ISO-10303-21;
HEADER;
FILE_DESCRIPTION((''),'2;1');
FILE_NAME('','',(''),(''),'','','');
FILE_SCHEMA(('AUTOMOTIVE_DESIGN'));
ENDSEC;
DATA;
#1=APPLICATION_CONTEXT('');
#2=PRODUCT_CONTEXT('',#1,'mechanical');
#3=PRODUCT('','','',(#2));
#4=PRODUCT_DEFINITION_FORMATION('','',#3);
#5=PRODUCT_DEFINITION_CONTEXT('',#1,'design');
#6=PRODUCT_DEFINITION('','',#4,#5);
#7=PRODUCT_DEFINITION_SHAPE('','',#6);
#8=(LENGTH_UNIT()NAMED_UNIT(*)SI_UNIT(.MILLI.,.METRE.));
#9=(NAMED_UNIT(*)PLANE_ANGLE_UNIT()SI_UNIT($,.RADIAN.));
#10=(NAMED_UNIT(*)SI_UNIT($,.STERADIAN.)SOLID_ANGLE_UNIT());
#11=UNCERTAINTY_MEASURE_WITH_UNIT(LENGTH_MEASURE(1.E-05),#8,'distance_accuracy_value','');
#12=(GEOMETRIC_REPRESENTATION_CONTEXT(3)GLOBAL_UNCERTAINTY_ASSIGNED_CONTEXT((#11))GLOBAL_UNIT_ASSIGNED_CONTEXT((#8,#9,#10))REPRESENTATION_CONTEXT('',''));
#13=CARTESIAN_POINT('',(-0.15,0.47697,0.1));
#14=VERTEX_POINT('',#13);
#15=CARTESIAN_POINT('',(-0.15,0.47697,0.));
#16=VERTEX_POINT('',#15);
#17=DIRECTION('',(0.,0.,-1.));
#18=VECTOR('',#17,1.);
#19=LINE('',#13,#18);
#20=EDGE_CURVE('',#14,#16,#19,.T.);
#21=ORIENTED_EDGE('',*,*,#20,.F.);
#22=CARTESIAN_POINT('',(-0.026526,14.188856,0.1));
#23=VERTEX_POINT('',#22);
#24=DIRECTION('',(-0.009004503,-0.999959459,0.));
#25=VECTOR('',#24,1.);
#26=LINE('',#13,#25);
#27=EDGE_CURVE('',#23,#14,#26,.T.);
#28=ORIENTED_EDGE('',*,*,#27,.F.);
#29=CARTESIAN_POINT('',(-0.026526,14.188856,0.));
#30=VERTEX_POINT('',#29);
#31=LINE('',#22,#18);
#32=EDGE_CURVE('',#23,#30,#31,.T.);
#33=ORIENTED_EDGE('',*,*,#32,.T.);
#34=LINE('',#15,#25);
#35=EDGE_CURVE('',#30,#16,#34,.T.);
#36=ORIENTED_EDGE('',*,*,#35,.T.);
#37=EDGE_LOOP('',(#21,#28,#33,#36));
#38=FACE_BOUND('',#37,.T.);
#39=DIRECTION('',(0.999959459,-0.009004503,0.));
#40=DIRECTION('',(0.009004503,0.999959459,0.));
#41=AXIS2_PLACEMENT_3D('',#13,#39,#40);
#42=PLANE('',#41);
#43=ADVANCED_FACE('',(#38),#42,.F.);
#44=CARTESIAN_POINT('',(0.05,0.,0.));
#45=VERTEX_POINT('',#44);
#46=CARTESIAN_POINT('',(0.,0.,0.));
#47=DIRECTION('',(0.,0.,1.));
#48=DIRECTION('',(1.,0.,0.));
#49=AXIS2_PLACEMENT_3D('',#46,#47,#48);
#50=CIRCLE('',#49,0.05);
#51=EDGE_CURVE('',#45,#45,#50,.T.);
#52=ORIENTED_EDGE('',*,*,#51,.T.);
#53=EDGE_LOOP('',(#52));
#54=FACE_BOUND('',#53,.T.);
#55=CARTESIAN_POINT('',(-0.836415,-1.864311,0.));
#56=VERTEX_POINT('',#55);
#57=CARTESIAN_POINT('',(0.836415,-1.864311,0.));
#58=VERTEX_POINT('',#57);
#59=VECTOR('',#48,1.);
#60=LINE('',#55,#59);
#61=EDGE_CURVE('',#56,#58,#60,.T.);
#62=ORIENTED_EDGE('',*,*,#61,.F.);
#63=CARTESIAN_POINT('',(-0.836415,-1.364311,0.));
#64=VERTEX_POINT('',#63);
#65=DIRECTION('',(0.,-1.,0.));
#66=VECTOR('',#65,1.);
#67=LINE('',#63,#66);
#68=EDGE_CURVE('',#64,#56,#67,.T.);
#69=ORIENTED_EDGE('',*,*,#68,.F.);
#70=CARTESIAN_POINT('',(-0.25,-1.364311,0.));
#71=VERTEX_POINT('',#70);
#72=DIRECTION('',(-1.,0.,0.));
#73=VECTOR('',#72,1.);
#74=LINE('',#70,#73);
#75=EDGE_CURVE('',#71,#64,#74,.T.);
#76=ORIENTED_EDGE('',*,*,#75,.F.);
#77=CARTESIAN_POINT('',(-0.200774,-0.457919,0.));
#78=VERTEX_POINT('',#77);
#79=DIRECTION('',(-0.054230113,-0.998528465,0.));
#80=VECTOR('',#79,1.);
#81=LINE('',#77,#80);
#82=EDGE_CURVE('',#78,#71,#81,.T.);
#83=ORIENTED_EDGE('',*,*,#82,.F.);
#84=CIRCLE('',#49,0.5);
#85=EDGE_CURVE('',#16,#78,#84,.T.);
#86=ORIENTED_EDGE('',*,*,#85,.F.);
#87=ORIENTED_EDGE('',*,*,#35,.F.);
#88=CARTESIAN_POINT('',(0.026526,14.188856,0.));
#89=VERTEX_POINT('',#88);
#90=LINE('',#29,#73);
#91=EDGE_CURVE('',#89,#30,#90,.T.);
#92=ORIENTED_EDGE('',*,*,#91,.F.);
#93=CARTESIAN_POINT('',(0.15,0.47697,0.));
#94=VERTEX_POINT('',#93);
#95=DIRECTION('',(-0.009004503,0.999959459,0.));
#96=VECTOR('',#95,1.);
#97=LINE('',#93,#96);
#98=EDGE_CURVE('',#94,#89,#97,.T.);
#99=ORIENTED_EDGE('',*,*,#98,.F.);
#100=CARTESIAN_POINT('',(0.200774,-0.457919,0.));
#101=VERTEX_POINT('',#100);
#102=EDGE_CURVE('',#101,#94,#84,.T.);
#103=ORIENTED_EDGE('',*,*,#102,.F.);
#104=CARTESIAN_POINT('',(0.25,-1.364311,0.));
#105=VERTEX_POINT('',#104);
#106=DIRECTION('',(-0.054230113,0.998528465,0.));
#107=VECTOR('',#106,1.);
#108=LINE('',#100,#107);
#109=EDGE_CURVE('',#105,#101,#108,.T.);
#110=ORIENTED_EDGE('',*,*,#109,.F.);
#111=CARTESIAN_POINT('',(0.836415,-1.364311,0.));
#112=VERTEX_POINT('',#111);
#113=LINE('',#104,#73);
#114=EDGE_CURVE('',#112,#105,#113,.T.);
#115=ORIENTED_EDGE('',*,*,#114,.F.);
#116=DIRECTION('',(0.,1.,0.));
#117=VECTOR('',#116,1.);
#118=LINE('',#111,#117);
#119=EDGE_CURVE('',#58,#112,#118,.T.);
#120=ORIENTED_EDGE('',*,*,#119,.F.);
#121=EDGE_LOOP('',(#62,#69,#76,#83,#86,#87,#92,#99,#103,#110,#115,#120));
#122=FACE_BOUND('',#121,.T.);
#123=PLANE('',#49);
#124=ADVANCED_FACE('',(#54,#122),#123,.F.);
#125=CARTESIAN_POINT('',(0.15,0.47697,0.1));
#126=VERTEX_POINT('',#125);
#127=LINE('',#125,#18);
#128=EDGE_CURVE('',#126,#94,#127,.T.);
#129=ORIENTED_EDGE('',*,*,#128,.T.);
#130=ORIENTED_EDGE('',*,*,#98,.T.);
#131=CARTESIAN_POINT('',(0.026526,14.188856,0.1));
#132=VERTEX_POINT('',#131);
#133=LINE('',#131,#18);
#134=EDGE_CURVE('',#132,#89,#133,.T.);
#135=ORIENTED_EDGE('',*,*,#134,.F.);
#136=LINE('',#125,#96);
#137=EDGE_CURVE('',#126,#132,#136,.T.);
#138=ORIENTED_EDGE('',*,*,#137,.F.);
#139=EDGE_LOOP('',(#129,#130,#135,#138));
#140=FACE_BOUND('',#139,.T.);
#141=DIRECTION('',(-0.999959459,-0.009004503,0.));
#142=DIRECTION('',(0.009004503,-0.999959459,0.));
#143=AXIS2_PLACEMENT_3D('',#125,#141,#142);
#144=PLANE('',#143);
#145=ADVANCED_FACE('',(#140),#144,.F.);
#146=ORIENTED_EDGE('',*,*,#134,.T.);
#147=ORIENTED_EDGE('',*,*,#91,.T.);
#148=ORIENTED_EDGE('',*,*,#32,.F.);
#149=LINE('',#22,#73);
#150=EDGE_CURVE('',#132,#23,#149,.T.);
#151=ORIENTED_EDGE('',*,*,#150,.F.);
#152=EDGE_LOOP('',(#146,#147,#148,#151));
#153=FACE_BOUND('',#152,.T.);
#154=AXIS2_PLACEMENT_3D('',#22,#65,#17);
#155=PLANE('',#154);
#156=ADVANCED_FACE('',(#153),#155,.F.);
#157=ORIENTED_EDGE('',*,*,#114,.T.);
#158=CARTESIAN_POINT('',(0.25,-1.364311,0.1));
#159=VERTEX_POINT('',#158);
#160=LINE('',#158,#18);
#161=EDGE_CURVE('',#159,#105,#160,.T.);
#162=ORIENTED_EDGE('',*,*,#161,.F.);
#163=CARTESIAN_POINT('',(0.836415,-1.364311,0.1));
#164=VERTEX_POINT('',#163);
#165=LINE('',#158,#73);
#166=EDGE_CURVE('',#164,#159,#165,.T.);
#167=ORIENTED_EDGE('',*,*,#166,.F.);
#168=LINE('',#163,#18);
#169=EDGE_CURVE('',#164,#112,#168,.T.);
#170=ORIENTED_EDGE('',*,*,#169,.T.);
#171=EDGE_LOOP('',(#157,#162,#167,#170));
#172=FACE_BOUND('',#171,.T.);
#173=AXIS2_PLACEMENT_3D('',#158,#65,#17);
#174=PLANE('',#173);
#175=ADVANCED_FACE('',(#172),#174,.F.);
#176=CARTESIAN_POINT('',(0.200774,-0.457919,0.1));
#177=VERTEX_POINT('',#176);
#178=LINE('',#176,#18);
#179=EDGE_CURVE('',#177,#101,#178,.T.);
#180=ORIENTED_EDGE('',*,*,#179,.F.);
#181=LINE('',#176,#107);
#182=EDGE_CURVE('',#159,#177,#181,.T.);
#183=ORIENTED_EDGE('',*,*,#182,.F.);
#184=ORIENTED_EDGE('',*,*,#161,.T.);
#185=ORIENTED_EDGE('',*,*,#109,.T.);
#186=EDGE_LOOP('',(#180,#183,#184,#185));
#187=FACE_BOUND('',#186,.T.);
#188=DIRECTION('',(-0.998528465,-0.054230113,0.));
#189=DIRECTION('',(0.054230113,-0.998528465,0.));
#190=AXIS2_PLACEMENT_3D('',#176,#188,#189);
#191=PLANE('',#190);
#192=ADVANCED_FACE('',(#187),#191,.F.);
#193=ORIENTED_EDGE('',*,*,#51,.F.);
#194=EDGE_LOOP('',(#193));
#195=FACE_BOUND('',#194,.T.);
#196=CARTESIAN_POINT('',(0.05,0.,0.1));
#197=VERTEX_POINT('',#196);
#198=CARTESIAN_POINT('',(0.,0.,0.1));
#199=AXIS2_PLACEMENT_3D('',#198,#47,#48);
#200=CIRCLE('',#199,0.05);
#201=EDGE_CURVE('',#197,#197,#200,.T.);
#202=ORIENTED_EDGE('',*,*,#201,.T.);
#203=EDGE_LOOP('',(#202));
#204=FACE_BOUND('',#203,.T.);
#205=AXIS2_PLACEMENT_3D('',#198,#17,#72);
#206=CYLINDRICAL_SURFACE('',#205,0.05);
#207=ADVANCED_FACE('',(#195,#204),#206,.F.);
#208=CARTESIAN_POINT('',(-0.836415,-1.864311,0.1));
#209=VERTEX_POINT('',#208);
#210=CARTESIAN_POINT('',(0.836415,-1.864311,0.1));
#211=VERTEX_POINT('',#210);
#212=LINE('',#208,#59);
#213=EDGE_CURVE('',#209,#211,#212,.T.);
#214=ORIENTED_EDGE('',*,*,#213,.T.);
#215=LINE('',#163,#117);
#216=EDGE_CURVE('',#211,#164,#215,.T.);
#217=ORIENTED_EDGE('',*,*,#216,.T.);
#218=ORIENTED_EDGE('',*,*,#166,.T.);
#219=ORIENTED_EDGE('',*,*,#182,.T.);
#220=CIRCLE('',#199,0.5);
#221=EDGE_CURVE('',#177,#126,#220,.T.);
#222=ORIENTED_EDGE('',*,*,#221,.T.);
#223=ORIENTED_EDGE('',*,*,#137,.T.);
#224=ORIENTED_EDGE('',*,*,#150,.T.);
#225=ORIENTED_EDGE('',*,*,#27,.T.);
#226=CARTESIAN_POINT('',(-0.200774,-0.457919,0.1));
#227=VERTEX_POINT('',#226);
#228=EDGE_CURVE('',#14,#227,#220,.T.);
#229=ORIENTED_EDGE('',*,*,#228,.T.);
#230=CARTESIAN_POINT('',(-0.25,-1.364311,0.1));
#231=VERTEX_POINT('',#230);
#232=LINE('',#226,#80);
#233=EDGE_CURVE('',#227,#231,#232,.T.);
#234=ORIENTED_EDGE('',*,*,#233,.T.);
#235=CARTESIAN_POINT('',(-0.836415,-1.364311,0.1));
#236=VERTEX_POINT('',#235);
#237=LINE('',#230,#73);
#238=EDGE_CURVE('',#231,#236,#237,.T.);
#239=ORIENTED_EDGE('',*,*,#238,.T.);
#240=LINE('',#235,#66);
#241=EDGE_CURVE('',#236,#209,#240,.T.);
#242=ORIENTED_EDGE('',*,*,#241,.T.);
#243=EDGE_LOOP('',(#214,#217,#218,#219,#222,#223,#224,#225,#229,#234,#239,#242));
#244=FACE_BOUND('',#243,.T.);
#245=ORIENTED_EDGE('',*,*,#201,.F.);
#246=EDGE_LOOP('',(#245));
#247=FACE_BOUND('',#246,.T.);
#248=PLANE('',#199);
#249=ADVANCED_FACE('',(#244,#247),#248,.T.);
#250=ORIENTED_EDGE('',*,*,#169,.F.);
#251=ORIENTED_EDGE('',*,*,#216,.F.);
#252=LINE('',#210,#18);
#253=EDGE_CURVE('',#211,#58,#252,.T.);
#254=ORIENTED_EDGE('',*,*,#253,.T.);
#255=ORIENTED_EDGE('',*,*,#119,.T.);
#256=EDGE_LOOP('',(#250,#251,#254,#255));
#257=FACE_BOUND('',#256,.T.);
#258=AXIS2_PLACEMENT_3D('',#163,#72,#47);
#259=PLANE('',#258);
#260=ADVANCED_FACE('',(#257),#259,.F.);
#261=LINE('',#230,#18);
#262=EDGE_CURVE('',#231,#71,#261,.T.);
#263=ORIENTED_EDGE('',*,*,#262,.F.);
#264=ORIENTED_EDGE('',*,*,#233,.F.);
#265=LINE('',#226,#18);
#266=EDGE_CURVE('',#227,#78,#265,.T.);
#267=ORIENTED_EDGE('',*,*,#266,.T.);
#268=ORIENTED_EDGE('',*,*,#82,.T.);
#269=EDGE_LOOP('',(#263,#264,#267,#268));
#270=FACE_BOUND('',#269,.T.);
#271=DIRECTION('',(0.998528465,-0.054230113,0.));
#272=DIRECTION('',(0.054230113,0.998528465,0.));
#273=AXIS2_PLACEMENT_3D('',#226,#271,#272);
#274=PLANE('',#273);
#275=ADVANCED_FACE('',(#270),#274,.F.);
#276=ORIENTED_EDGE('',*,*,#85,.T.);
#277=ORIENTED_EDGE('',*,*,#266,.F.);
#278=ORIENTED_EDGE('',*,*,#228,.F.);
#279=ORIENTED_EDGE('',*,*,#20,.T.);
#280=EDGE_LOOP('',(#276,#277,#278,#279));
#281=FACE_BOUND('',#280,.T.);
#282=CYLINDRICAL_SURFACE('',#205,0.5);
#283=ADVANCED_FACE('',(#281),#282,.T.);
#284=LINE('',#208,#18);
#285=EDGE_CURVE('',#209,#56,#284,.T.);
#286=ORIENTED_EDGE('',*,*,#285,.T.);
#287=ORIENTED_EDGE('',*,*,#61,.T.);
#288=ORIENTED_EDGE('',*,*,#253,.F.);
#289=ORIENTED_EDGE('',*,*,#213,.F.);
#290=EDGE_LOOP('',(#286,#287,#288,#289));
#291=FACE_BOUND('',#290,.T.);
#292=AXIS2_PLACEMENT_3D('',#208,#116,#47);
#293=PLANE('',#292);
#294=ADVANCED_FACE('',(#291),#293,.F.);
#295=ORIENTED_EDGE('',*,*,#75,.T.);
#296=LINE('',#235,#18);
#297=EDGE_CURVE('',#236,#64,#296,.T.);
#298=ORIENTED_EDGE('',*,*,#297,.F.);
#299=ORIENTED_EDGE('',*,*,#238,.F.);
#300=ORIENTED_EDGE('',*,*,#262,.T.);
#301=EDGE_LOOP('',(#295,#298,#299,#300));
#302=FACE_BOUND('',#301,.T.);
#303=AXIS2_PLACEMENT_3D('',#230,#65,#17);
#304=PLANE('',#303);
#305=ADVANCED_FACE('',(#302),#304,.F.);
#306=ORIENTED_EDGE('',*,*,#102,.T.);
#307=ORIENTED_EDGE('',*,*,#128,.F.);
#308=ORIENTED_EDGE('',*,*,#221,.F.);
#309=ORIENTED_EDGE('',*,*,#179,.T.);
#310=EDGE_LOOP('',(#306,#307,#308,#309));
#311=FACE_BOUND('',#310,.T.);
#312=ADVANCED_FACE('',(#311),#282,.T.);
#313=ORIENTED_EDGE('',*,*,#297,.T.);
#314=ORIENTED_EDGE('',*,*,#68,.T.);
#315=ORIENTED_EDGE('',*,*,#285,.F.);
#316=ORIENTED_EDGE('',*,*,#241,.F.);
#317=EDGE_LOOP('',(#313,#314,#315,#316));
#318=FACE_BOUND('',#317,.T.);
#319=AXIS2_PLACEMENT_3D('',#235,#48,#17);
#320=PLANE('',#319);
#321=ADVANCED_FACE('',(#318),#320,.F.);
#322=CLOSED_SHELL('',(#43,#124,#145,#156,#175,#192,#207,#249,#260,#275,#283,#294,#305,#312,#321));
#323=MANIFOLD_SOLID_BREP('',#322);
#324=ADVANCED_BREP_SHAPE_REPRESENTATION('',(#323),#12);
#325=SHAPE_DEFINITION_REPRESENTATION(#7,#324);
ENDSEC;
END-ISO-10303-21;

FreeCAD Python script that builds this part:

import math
import FreeCAD as App
import Part
import Sketcher
from FreeCAD import Vector
Q = App.Units.Quantity

doc = App.newDocument("Part")
body = doc.addObject("PartDesign::Body", "Body")

# Sketch on XY plane
sketch1 = doc.addObject("Sketcher::SketchObject", "Sketch")
body.addObject(sketch1)
sketch1.AttachmentSupport = (doc.XY_Plane, [""])
sketch1.MapMode = "FlatFace"
sketch1.addGeometry(Part.LineSegment(Vector(0.25, -1.36, 0), Vector(0.2, -0.46, 0)), False)
sketch1.addGeometry(Part.ArcOfCircle(Part.Circle(Vector(0, 0, 0), Vector(0, 0, 1), 0.5), math.radians(-66), math.radians(73)), False)
sketch1.addGeometry(Part.LineSegment(Vector(0.15, 0.48, 0), Vector(0.03, 14.19, 0)), False)
sketch1.addGeometry(Part.LineSegment(Vector(0.03, 14.19, 0), Vector(-0.03, 14.19, 0)), False)
sketch1.addGeometry(Part.LineSegment(Vector(-0.03, 14.19, 0), Vector(-0.15, 0.48, 0)), False)
sketch1.addGeometry(Part.ArcOfCircle(Part.Circle(Vector(0, 0, 0), Vector(0, 0, 1), 0.5), math.radians(107), math.radians(246)), False)
sketch1.addGeometry(Part.LineSegment(Vector(-0.2, -0.46, 0), Vector(-0.25, -1.36, 0)), False)
sketch1.addGeometry(Part.LineSegment(Vector(-0.25, -1.36, 0), Vector(-0.84, -1.36, 0)), False)
sketch1.addGeometry(Part.LineSegment(Vector(-0.84, -1.36, 0), Vector(-0.84, -1.86, 0)), False)
sketch1.addGeometry(Part.LineSegment(Vector(-0.84, -1.86, 0), Vector(0.84, -1.86, 0)), False)
sketch1.addGeometry(Part.LineSegment(Vector(0.84, -1.86, 0), Vector(0.84, -1.36, 0)), False)
sketch1.addGeometry(Part.LineSegment(Vector(0.84, -1.36, 0), Vector(0.25, -1.36, 0)), False)
sketch1.addGeometry(Part.Circle(Vector(0, 0, 0), Vector(0, 0, 1), 0.05), False)
sketch1.addConstraint(Sketcher.Constraint("Coincident", 0, 2, 1, 1))
sketch1.addConstraint(Sketcher.Constraint("Coincident", 1, 2, 2, 1))
sketch1.addConstraint(Sketcher.Constraint("Coincident", 2, 2, 3, 1))
sketch1.addConstraint(Sketcher.Constraint("Coincident", 3, 2, 4, 1))
sketch1.addConstraint(Sketcher.Constraint("Coincident", 4, 2, 5, 1))
sketch1.addConstraint(Sketcher.Constraint("Coincident", 5, 2, 6, 1))
sketch1.addConstraint(Sketcher.Constraint("Coincident", 6, 2, 7, 1))
sketch1.addConstraint(Sketcher.Constraint("Coincident", 7, 2, 8, 1))
sketch1.addConstraint(Sketcher.Constraint("Coincident", 8, 2, 9, 1))
sketch1.addConstraint(Sketcher.Constraint("Coincident", 9, 2, 10, 1))
sketch1.addConstraint(Sketcher.Constraint("Coincident", 10, 2, 11, 1))
sketch1.addConstraint(Sketcher.Constraint("Coincident", 11, 2, 0, 1))
sketch1.addConstraint(Sketcher.Constraint("Horizontal", 3))
sketch1.addConstraint(Sketcher.Constraint("Horizontal", 7))
sketch1.addConstraint(Sketcher.Constraint("Vertical", 8))
sketch1.addConstraint(Sketcher.Constraint("Horizontal", 9))
sketch1.addConstraint(Sketcher.Constraint("Vertical", 10))
sketch1.addConstraint(Sketcher.Constraint("Horizontal", 11))
sketch1.addConstraint(Sketcher.Constraint("Coincident", 1, 3, -1, 1))
sketch1.addConstraint(Sketcher.Constraint("Coincident", 5, 3, -1, 1))
sketch1.addConstraint(Sketcher.Constraint("Coincident", 12, 3, -1, 1))
sketch1.addConstraint(Sketcher.Constraint("Equal", 1, 5))
sketch1.addConstraint(Sketcher.Constraint("Symmetric", 7, 2, 10, 2, -2))
sketch1.addConstraint(Sketcher.Constraint("Horizontal", 1, 2, 4, 2))
sketch1.addConstraint(Sketcher.Constraint("Horizontal", 0, 2, 5, 2))
sketch1.addConstraint(Sketcher.Constraint("Equal", 7, 11))
sketch1.addConstraint(Sketcher.Constraint("Equal", 2, 4))
sketch1.addConstraint(Sketcher.Constraint("Diameter", 12, Q("0.1 mm")))
sketch1.addConstraint(Sketcher.Constraint("Radius", 1, Q("0.5 mm")))
sketch1.addConstraint(Sketcher.Constraint("DistanceY", 8, 2, 8, 1, Q("0.5 mm")))
sketch1.addConstraint(Sketcher.Constraint("DistanceX", 4, 2, 1, 2, Q("0.3 mm")))
sketch1.addConstraint(Sketcher.Constraint("DistanceX", 6, 2, 11, 2, Q("0.5 mm")))
sketch1.addConstraint(Sketcher.Constraint("DistanceX", 9, 1, 9, 2, Q("1.672829 mm")))
sketch1.addConstraint(Sketcher.Constraint("DistanceX", 3, 2, 3, 1, Q("0.053053 mm")))
sketch1.addConstraint(Sketcher.Constraint("DistanceY", 0, 2, -1, 1, Q("0.457919 mm")))
sketch1.addConstraint(Sketcher.Constraint("DistanceY", 6, 2, -1, 1, Q("1.364311 mm")))
sketch1.addConstraint(Sketcher.Constraint("Distance", 2, Q("13.712443 mm")))
pad1 = doc.addObject("PartDesign::Pad", "Pad")
body.addObject(pad1)
pad1.Profile = sketch1
pad1.Length = 0.1

doc.recompute()
